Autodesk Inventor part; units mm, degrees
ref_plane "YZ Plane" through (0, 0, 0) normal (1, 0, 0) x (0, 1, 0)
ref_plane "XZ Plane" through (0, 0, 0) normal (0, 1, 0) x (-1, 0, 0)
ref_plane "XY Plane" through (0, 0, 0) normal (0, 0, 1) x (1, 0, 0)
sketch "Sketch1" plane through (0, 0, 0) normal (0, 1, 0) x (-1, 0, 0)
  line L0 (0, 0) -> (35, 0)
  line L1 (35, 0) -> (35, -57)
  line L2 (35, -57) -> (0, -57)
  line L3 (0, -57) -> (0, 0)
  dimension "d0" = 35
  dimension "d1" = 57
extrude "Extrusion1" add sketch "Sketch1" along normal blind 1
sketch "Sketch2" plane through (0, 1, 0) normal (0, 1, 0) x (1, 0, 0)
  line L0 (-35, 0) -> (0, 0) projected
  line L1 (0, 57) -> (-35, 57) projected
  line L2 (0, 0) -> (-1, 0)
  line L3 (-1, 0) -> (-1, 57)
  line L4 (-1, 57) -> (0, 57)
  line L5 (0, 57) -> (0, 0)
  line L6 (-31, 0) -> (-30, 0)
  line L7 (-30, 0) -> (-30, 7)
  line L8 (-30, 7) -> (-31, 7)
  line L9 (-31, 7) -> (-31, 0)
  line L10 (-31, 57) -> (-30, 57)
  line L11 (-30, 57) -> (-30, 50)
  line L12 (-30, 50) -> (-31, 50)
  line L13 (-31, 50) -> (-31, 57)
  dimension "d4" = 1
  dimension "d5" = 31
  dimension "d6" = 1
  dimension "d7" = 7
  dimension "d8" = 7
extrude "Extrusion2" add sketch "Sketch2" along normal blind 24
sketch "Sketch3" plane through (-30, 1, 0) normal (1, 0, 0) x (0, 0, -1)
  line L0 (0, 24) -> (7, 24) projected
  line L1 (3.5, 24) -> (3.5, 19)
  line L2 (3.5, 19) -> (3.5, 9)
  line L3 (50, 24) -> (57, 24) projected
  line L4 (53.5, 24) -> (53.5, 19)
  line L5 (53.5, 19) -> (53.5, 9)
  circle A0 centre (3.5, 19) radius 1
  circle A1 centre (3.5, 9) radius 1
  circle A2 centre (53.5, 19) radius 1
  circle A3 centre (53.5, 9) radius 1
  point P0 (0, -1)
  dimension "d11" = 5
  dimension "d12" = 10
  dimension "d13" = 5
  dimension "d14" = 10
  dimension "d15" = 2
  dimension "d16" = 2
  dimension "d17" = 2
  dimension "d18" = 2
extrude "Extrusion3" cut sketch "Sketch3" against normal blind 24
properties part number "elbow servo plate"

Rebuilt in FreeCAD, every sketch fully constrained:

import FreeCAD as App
import Part
import Sketcher

V = App.Vector
Q = App.Units.Quantity

doc = App.newDocument("Part")
body = doc.addObject("PartDesign::Body", "Body")

# Sketch on XZ plane
sketch1 = doc.addObject("Sketcher::SketchObject", "Sketch")
body.addObject(sketch1)
sketch1.AttachmentSupport = (doc.XZ_Plane, [""])
sketch1.MapMode = "FlatFace"
sketch1.addGeometry([
    Part.LineSegment(V(-35, 0, 0), V(0, 0, 0)),
    Part.LineSegment(V(0, 0, 0), V(0, -57, 0)),
    Part.LineSegment(V(0, -57, 0), V(-35, -57, 0)),
    Part.LineSegment(V(-35, -57, 0), V(-35, 0, 0)),
], False)
sketch1.addConstraint([
    Sketcher.Constraint("Coincident", 0, 2, 1, 1),
    Sketcher.Constraint("Coincident", 1, 2, 2, 1),
    Sketcher.Constraint("Coincident", 2, 2, 3, 1),
    Sketcher.Constraint("Coincident", 3, 2, 0, 1),
    Sketcher.Constraint("Horizontal", 0),
    Sketcher.Constraint("Vertical", 1),
    Sketcher.Constraint("Horizontal", 2),
    Sketcher.Constraint("Vertical", 3),
    Sketcher.Constraint("Coincident", 0, 2, -1, 1),
    Sketcher.Constraint("DistanceX", 0, 1, 0, 2, Q("35 mm")),
    Sketcher.Constraint("DistanceY", 1, 2, 1, 1, Q("57 mm")),
])
pad1 = doc.addObject("PartDesign::Pad", "Pad")
body.addObject(pad1)
pad1.Profile = sketch1
pad1.Length = 1
pad1.Reversed = True

# Sketch on XZ plane
sketch2 = doc.addObject("Sketcher::SketchObject", "Sketch001")
body.addObject(sketch2)
sketch2.AttachmentSupport = (doc.XZ_Plane, [""])
sketch2.MapMode = "FlatFace"
sketch2.AttachmentOffset = App.Placement(V(0, 0, -1), App.Rotation())
sketch2.addGeometry([
    Part.LineSegment(V(-31, -7, 0), V(-31, 0, 0)),  # 0
    Part.LineSegment(V(-31, 0, 0), V(-30, 0, 0)),  # 1
    Part.LineSegment(V(-30, 0, 0), V(-30, -7, 0)),  # 2
    Part.LineSegment(V(-30, -7, 0), V(-31, -7, 0)),  # 3
    Part.LineSegment(V(-30, -50, 0), V(-30, -57, 0)),  # 4
    Part.LineSegment(V(-30, -57, 0), V(-31, -57, 0)),  # 5
    Part.LineSegment(V(-31, -57, 0), V(-31, -50, 0)),  # 6
    Part.LineSegment(V(-31, -50, 0), V(-30, -50, 0)),  # 7
    Part.LineSegment(V(-1, -57, 0), V(-1, 0, 0)),  # 8
    Part.LineSegment(V(-1, 0, 0), V(0, 0, 0)),  # 9
    Part.LineSegment(V(0, 0, 0), V(0, -57, 0)),  # 10
    Part.LineSegment(V(0, -57, 0), V(-1, -57, 0)),  # 11
], False)
sketch2.addConstraint([
    Sketcher.Constraint("Coincident", 0, 2, 1, 1),
    Sketcher.Constraint("Coincident", 1, 2, 2, 1),
    Sketcher.Constraint("Coincident", 2, 2, 3, 1),
    Sketcher.Constraint("Coincident", 3, 2, 0, 1),
    Sketcher.Constraint("Coincident", 4, 2, 5, 1),
    Sketcher.Constraint("Coincident", 5, 2, 6, 1),
    Sketcher.Constraint("Coincident", 6, 2, 7, 1),
    Sketcher.Constraint("Coincident", 7, 2, 4, 1),
    Sketcher.Constraint("Coincident", 8, 2, 9, 1),
    Sketcher.Constraint("Coincident", 9, 2, 10, 1),
    Sketcher.Constraint("Coincident", 10, 2, 11, 1),
    Sketcher.Constraint("Coincident", 11, 2, 8, 1),
    Sketcher.Constraint("Vertical", 0),
    Sketcher.Constraint("Horizontal", 1),
    Sketcher.Constraint("Vertical", 2),
    Sketcher.Constraint("Horizontal", 3),
    Sketcher.Constraint("Vertical", 4),
    Sketcher.Constraint("Horizontal", 5),
    Sketcher.Constraint("Vertical", 6),
    Sketcher.Constraint("Horizontal", 7),
    Sketcher.Constraint("Vertical", 8),
    Sketcher.Constraint("Horizontal", 9),
    Sketcher.Constraint("Vertical", 10),
    Sketcher.Constraint("Horizontal", 11),
    Sketcher.Constraint("Coincident", 9, 2, -1, 1),
    Sketcher.Constraint("PointOnObject", 0, 2, -1),
    Sketcher.Constraint("Horizontal", 5, 2, 10, 2),
    Sketcher.Constraint("Vertical", 2, 2, 4, 2),
    Sketcher.Constraint("Vertical", 3, 2, 5, 2),
    Sketcher.Constraint("Equal", 7, 9),
    Sketcher.Constraint("Equal", 2, 4),
    Sketcher.Constraint("DistanceX", 1, 1, 1, 2, Q("1 mm")),
    Sketcher.Constraint("DistanceY", 0, 1, 0, 2, Q("7 mm")),
    Sketcher.Constraint("DistanceX", 0, 2, -1, 1, Q("31 mm")),
    Sketcher.Constraint("DistanceY", 8, 1, 8, 2, Q("57 mm")),
])
pad2 = doc.addObject("PartDesign::Pad", "Pad001")
body.addObject(pad2)
pad2.Profile = sketch2
pad2.Length = 24
pad2.Reversed = True

# Sketch on YZ plane
sketch3 = doc.addObject("Sketcher::SketchObject", "Sketch002")
body.addObject(sketch3)
sketch3.AttachmentSupport = (doc.YZ_Plane, [""])
sketch3.MapMode = "FlatFace"
sketch3.AttachmentOffset = App.Placement(V(0, 0, -30), App.Rotation())
sketch3.addGeometry([
    Part.Circle(V(20, -3.5, 0), V(0, 0, 1), 1),
    Part.Circle(V(10, -3.5, 0), V(0, 0, 1), 1),
    Part.Circle(V(20, -53.5, 0), V(0, 0, 1), 1),
    Part.Circle(V(10, -53.5, 0), V(0, 0, 1), 1),
], False)
sketch3.addConstraint([
    Sketcher.Constraint("Equal", 0, 1),
    Sketcher.Constraint("Equal", 1, 2),
    Sketcher.Constraint("Equal", 2, 3),
    Sketcher.Constraint("Horizontal", 0, 3, 1, 3),
    Sketcher.Constraint("Horizontal", 2, 3, 3, 3),
    Sketcher.Constraint("Vertical", 0, 3, 2, 3),
    Sketcher.Constraint("Vertical", 1, 3, 3, 3),
    Sketcher.Constraint("Diameter", 0, Q("2 mm")),
    Sketcher.Constraint("DistanceX", -1, 1, 1, 3, Q("10 mm")),
    Sketcher.Constraint("DistanceX", 1, 3, 0, 3, Q("10 mm")),
    Sketcher.Constraint("DistanceY", 2, 3, 0, 3, Q("50 mm")),
    Sketcher.Constraint("DistanceY", 0, 3, -1, 1, Q("3.5 mm")),
])
pocket1 = doc.addObject("PartDesign::Pocket", "Pocket")
body.addObject(pocket1)
pocket1.Profile = sketch3
pocket1.Length = 24

doc.recompute()
